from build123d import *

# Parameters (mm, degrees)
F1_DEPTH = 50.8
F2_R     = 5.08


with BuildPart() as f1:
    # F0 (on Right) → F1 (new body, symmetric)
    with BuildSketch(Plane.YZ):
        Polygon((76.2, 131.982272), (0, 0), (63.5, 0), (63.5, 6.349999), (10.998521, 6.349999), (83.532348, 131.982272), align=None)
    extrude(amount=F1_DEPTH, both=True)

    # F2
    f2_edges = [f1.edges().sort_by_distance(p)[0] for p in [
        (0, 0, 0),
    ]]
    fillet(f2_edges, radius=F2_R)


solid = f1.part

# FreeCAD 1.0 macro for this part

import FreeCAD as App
import Part
import Sketcher
Q = App.Units.Quantity


def edges_at(feature, points):
    """Names of the edges that pass closest to the given points."""
    edges = feature.Shape.Edges
    near = lambda p: min(range(len(edges)), key=lambda i: edges[i].distToShape(Part.Vertex(*p))[0])
    return sorted({f"Edge{near(p) + 1}" for p in points})


def add_polygon(sketch, points):
    """Adds a closed chain of lines whose ends are joined by coincident constraints."""
    first, n = sketch.GeometryCount, len(points)
    for a, b in zip(points, points[1:] + points[:1]):
        sketch.addGeometry(Part.LineSegment(App.Vector(*a, 0), App.Vector(*b, 0)), False)
    for i in range(n):
        sketch.addConstraint(Sketcher.Constraint("Coincident", first + i, 2, first + (i + 1) % n, 1))

doc = App.newDocument("Part")
body = doc.addObject("PartDesign::Body", "Body")

sketch1 = body.newObject("Sketcher::SketchObject", "Sketch")
sketch1.AttachmentSupport = (doc.getObject("YZ_Plane"), [""])
sketch1.MapMode = "FlatFace"
add_polygon(sketch1, [(76.2, 131.982272), (0, 0), (63.5, 0), (63.5, 6.349999), (10.998521, 6.349999), (83.532348, 131.982272)])
sketch1.addConstraint(Sketcher.Constraint("Horizontal", 1))
sketch1.addConstraint(Sketcher.Constraint("Vertical", 2))
sketch1.addConstraint(Sketcher.Constraint("Horizontal", 3))
sketch1.addConstraint(Sketcher.Constraint("Horizontal", 5))
sketch1.addConstraint(Sketcher.Constraint("Coincident", 0, 2, -1, 1))
sketch1.addConstraint(Sketcher.Constraint("Parallel", 0, 4))
sketch1.addConstraint(Sketcher.Constraint("Distance", 0, Q("6 in")))
sketch1.addConstraint(Sketcher.Constraint("DistanceX", 1, 1, 1, 2, Q("2.5 in")))
sketch1.addConstraint(Sketcher.Constraint("DistanceX", -1, 1, 5, 2, Q("3 in")))
sketch1.addConstraint(Sketcher.Constraint("DistanceY", 2, 1, 2, 2, Q("0.25 in")))
sketch1.addConstraint(Sketcher.Constraint("DistanceX", 3, 2, 3, 1, 52.501479))
pad1 = body.newObject("PartDesign::Pad", "Pad")
pad1.Profile = sketch1
pad1.Length = Q("4 in")
pad1.Midplane = True
doc.recompute()

fillet = body.newObject("PartDesign::Fillet", "Fillet")
fillet.Base = (pad1, edges_at(pad1, [(0, 0, 0)]))
fillet.Radius = Q("0.2 in")

doc.recompute()
